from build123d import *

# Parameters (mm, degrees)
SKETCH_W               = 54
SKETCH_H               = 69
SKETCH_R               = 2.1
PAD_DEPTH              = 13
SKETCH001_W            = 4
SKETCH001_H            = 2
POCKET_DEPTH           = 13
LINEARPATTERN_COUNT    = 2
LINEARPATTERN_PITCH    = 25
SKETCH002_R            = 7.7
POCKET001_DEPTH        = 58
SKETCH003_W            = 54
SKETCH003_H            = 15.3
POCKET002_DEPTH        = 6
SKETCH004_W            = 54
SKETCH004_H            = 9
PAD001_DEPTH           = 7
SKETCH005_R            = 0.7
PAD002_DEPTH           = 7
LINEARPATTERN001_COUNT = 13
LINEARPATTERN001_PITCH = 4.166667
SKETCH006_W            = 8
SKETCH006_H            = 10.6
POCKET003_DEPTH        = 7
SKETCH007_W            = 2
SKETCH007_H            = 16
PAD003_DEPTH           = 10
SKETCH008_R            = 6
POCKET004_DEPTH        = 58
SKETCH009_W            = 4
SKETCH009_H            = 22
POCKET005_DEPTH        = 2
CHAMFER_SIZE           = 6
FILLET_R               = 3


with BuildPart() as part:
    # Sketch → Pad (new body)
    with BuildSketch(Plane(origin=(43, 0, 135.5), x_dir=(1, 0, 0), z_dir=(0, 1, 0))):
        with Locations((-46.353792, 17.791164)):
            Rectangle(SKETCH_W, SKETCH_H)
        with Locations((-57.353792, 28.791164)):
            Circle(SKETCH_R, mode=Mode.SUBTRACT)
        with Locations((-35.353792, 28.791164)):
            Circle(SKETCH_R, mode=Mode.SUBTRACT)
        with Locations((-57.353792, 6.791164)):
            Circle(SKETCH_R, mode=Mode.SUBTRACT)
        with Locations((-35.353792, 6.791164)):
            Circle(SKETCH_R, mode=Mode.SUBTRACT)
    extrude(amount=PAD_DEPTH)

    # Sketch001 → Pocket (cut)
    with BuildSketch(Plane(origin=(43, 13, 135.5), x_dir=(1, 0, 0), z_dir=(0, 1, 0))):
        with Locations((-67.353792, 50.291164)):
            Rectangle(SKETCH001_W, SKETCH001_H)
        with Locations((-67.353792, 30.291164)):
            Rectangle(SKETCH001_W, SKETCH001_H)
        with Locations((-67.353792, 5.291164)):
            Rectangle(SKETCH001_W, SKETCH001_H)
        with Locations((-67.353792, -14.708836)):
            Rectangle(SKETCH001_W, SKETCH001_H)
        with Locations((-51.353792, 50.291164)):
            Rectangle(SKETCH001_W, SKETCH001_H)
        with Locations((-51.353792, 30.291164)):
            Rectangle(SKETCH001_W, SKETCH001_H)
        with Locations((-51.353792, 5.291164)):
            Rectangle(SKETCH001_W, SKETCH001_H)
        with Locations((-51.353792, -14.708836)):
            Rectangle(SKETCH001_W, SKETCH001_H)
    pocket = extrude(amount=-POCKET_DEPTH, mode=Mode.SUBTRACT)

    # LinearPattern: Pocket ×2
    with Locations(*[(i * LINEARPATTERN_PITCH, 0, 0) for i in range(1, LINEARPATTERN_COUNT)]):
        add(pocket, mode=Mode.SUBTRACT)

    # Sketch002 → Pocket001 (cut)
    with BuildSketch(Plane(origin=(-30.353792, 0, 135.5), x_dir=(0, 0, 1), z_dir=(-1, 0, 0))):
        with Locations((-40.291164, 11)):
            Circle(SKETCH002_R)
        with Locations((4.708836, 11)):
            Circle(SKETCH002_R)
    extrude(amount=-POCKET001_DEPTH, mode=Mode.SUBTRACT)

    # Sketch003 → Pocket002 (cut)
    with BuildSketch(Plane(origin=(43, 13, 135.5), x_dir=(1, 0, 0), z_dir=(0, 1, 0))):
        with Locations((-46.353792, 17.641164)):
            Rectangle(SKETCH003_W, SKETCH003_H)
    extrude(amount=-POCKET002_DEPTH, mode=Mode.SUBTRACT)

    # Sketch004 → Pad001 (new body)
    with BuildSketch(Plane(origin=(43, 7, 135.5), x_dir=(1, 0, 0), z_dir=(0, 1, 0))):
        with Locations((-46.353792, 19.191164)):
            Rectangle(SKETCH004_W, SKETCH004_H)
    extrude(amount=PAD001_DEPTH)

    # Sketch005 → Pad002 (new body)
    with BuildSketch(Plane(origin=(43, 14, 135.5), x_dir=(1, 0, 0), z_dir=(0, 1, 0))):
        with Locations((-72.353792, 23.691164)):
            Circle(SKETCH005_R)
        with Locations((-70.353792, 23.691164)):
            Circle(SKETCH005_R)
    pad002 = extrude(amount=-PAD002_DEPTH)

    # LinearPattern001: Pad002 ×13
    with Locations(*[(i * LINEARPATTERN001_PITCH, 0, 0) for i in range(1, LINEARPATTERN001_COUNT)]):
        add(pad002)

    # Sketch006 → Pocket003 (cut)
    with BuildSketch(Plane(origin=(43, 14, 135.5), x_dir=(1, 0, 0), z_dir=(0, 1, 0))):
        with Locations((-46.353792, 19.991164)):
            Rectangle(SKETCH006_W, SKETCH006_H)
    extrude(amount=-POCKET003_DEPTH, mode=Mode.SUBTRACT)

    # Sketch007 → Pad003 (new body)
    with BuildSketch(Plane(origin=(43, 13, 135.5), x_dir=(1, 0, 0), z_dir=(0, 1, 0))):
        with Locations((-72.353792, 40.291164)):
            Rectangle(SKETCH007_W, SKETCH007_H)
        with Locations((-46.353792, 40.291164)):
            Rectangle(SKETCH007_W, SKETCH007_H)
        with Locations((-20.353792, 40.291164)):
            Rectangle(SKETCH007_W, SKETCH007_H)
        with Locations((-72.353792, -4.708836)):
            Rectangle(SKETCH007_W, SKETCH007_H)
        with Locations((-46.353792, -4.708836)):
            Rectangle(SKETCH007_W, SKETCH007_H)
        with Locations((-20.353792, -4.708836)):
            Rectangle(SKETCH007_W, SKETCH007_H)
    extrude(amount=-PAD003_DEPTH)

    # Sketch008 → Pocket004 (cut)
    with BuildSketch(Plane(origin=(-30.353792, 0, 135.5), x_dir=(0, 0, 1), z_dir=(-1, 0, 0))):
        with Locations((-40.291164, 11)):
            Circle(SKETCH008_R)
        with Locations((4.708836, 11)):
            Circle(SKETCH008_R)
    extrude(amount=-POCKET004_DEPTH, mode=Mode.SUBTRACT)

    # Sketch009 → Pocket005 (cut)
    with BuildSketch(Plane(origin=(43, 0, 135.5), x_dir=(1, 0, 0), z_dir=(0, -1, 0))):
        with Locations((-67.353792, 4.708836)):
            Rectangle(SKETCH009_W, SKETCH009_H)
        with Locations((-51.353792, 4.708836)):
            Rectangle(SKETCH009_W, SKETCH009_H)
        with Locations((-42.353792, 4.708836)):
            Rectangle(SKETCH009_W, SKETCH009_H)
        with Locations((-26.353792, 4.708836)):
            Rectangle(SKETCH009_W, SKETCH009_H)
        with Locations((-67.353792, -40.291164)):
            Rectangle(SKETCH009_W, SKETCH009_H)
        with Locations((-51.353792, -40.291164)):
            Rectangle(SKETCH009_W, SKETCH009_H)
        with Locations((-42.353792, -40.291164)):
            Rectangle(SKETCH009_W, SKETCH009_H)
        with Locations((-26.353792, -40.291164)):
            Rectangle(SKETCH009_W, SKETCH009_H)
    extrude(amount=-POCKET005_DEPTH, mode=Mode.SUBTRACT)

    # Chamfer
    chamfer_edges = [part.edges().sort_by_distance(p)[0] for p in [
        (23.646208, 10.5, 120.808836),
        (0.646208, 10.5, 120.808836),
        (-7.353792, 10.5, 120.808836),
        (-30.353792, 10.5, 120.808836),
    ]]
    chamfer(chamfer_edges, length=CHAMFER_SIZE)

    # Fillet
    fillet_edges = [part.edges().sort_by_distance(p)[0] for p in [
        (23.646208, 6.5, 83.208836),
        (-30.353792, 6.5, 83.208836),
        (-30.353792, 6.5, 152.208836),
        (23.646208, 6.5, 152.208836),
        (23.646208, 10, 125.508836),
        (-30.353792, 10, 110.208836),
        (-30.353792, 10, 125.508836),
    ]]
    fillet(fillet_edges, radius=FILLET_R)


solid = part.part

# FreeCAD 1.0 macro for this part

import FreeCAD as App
import Part
import Sketcher
from FreeCAD import Vector


def edges_at(feature, points):
    """Names of the edges that pass closest to the given points."""
    edges = feature.Shape.Edges
    near = lambda p: min(range(len(edges)), key=lambda i: edges[i].distToShape(Part.Vertex(*p))[0])
    return sorted({f"Edge{near(p) + 1}" for p in points})

doc = App.newDocument("Part")
body = doc.addObject("PartDesign::Body", "Body")

# Sketch on XZ plane
sketch1 = body.newObject("Sketcher::SketchObject", "Sketch")
sketch1.AttachmentSupport = (doc.getObject("XZ_Plane"), [""])
sketch1.MapMode = "FlatFace"
sketch1.addGeometry(Part.LineSegment(Vector(-30.353792, 83.208836, 0), Vector(-30.353792, 152.208836, 0)), False)
sketch1.addGeometry(Part.LineSegment(Vector(-30.353792, 152.208836, 0), Vector(23.646208, 152.208836, 0)), False)
sketch1.addGeometry(Part.LineSegment(Vector(23.646208, 152.208836, 0), Vector(23.646208, 83.208836, 0)), False)
sketch1.addGeometry(Part.LineSegment(Vector(23.646208, 83.208836, 0), Vector(-30.353792, 83.208836, 0)), False)
sketch1.addGeometry(Part.Circle(Vector(-14.353792, 128.708836, 0), Vector(0, 0, 1), 2.1), False)
sketch1.addGeometry(Part.Circle(Vector(7.646208, 128.708836, 0), Vector(0, 0, 1), 2.1), False)
sketch1.addGeometry(Part.Circle(Vector(-14.353792, 106.708836, 0), Vector(0, 0, 1), 2.1), False)
sketch1.addGeometry(Part.Circle(Vector(7.646208, 106.708836, 0), Vector(0, 0, 1), 2.1), False)
sketch1.addConstraint(Sketcher.Constraint("Coincident", 0, 2, 1, 1))
sketch1.addConstraint(Sketcher.Constraint("Coincident", 1, 2, 2, 1))
sketch1.addConstraint(Sketcher.Constraint("Coincident", 2, 2, 3, 1))
sketch1.addConstraint(Sketcher.Constraint("Coincident", 3, 2, 0, 1))
sketch1.addConstraint(Sketcher.Constraint("Vertical", 0))
sketch1.addConstraint(Sketcher.Constraint("Horizontal", 1))
sketch1.addConstraint(Sketcher.Constraint("Vertical", 2))
sketch1.addConstraint(Sketcher.Constraint("Horizontal", 3))
sketch1.addConstraint(Sketcher.Constraint("Equal", 4, 5))
sketch1.addConstraint(Sketcher.Constraint("Equal", 5, 6))
sketch1.addConstraint(Sketcher.Constraint("Equal", 6, 7))
sketch1.addConstraint(Sketcher.Constraint("Horizontal", 4, 3, 5, 3))
sketch1.addConstraint(Sketcher.Constraint("Horizontal", 6, 3, 7, 3))
sketch1.addConstraint(Sketcher.Constraint("Vertical", 4, 3, 6, 3))
sketch1.addConstraint(Sketcher.Constraint("Vertical", 5, 3, 7, 3))
sketch1.addConstraint(Sketcher.Constraint("Diameter", 4, 4.2))
sketch1.addConstraint(Sketcher.Constraint("DistanceX", 1, 1, 1, 2, 54.0))
sketch1.addConstraint(Sketcher.Constraint("DistanceY", 0, 1, 0, 2, 69.0))
sketch1.addConstraint(Sketcher.Constraint("DistanceX", 4, 3, 5, 3, 22.0))
sketch1.addConstraint(Sketcher.Constraint("DistanceY", 6, 3, 4, 3, 22.0))
sketch1.addConstraint(Sketcher.Constraint("DistanceX", 0, 2, 4, 3, 16.0))
sketch1.addConstraint(Sketcher.Constraint("DistanceY", 4, 3, 0, 2, 23.5))
sketch1.addConstraint(Sketcher.Constraint("DistanceX", 0, 2, -1, 1, 30.353792))
sketch1.addConstraint(Sketcher.Constraint("DistanceY", -1, 1, 4, 3, 128.708836))
pad1 = body.newObject("PartDesign::Pad", "Pad")
pad1.Profile = sketch1
pad1.Length = 13
pad1.Reversed = True

# Sketch on XZ plane
sketch2 = body.newObject("Sketcher::SketchObject", "Sketch001")
sketch2.AttachmentSupport = (doc.getObject("XZ_Plane"), [""])
sketch2.MapMode = "FlatFace"
sketch2.AttachmentOffset = App.Placement(Vector(0, 0, -13), App.Rotation())
sketch2.addGeometry(Part.LineSegment(Vector(-26.353792, 84.208836, 0), Vector(-26.353792, 86.208836, 0)), False)
sketch2.addGeometry(Part.LineSegment(Vector(-26.353792, 86.208836, 0), Vector(-22.353792, 86.208836, 0)), False)
sketch2.addGeometry(Part.LineSegment(Vector(-22.353792, 86.208836, 0), Vector(-22.353792, 84.208836, 0)), False)
sketch2.addGeometry(Part.LineSegment(Vector(-22.353792, 84.208836, 0), Vector(-26.353792, 84.208836, 0)), False)
sketch2.addGeometry(Part.LineSegment(Vector(-26.353792, 104.208836, 0), Vector(-26.353792, 106.208836, 0)), False)
sketch2.addGeometry(Part.LineSegment(Vector(-26.353792, 106.208836, 0), Vector(-22.353792, 106.208836, 0)), False)
sketch2.addGeometry(Part.LineSegment(Vector(-22.353792, 106.208836, 0), Vector(-22.353792, 104.208836, 0)), False)
sketch2.addGeometry(Part.LineSegment(Vector(-22.353792, 104.208836, 0), Vector(-26.353792, 104.208836, 0)), False)
sketch2.addGeometry(Part.LineSegment(Vector(-26.353792, 129.208836, 0), Vector(-26.353792, 131.208836, 0)), False)
sketch2.addGeometry(Part.LineSegment(Vector(-26.353792, 131.208836, 0), Vector(-22.353792, 131.208836, 0)), False)
sketch2.addGeometry(Part.LineSegment(Vector(-22.353792, 131.208836, 0), Vector(-22.353792, 129.208836, 0)), False)
sketch2.addGeometry(Part.LineSegment(Vector(-22.353792, 129.208836, 0), Vector(-26.353792, 129.208836, 0)), False)
sketch2.addGeometry(Part.LineSegment(Vector(-26.353792, 149.208836, 0), Vector(-26.353792, 151.208836, 0)), False)
sketch2.addGeometry(Part.LineSegment(Vector(-26.353792, 151.208836, 0), Vector(-22.353792, 151.208836, 0)), False)
sketch2.addGeometry(Part.LineSegment(Vector(-22.353792, 151.208836, 0), Vector(-22.353792, 149.208836, 0)), False)
sketch2.addGeometry(Part.LineSegment(Vector(-22.353792, 149.208836, 0), Vector(-26.353792, 149.208836, 0)), False)
sketch2.addGeometry(Part.LineSegment(Vector(-10.353792, 84.208836, 0), Vector(-10.353792, 86.208836, 0)), False)
sketch2.addGeometry(Part.LineSegment(Vector(-10.353792, 86.208836, 0), Vector(-6.353792, 86.208836, 0)), False)
sketch2.addGeometry(Part.LineSegment(Vector(-6.353792, 86.208836, 0), Vector(-6.353792, 84.208836, 0)), False)
sketch2.addGeometry(Part.LineSegment(Vector(-6.353792, 84.208836, 0), Vector(-10.353792, 84.208836, 0)), False)
sketch2.addGeometry(Part.LineSegment(Vector(-10.353792, 104.208836, 0), Vector(-10.353792, 106.208836, 0)), False)
sketch2.addGeometry(Part.LineSegment(Vector(-10.353792, 106.208836, 0), Vector(-6.353792, 106.208836, 0)), False)
sketch2.addGeometry(Part.LineSegment(Vector(-6.353792, 106.208836, 0), Vector(-6.353792, 104.208836, 0)), False)
sketch2.addGeometry(Part.LineSegment(Vector(-6.353792, 104.208836, 0), Vector(-10.353792, 104.208836, 0)), False)
sketch2.addGeometry(Part.LineSegment(Vector(-10.353792, 129.208836, 0), Vector(-10.353792, 131.208836, 0)), False)
sketch2.addGeometry(Part.LineSegment(Vector(-10.353792, 131.208836, 0), Vector(-6.353792, 131.208836, 0)), False)
sketch2.addGeometry(Part.LineSegment(Vector(-6.353792, 131.208836, 0), Vector(-6.353792, 129.208836, 0)), False)
sketch2.addGeometry(Part.LineSegment(Vector(-6.353792, 129.208836, 0), Vector(-10.353792, 129.208836, 0)), False)
sketch2.addGeometry(Part.LineSegment(Vector(-10.353792, 149.208836, 0), Vector(-10.353792, 151.208836, 0)), False)
sketch2.addGeometry(Part.LineSegment(Vector(-10.353792, 151.208836, 0), Vector(-6.353792, 151.208836, 0)), False)
sketch2.addGeometry(Part.LineSegment(Vector(-6.353792, 151.208836, 0), Vector(-6.353792, 149.208836, 0)), False)
sketch2.addGeometry(Part.LineSegment(Vector(-6.353792, 149.208836, 0), Vector(-10.353792, 149.208836, 0)), False)
sketch2.addConstraint(Sketcher.Constraint("Coincident", 0, 2, 1, 1))
sketch2.addConstraint(Sketcher.Constraint("Coincident", 1, 2, 2, 1))
sketch2.addConstraint(Sketcher.Constraint("Coincident", 2, 2, 3, 1))
sketch2.addConstraint(Sketcher.Constraint("Coincident", 3, 2, 0, 1))
sketch2.addConstraint(Sketcher.Constraint("Coincident", 4, 2, 5, 1))
sketch2.addConstraint(Sketcher.Constraint("Coincident", 5, 2, 6, 1))
sketch2.addConstraint(Sketcher.Constraint("Coincident", 6, 2, 7, 1))
sketch2.addConstraint(Sketcher.Constraint("Coincident", 7, 2, 4, 1))
sketch2.addConstraint(Sketcher.Constraint("Coincident", 8, 2, 9, 1))
sketch2.addConstraint(Sketcher.Constraint("Coincident", 9, 2, 10, 1))
sketch2.addConstraint(Sketcher.Constraint("Coincident", 10, 2, 11, 1))
sketch2.addConstraint(Sketcher.Constraint("Coincident", 11, 2, 8, 1))
sketch2.addConstraint(Sketcher.Constraint("Coincident", 12, 2, 13, 1))
sketch2.addConstraint(Sketcher.Constraint("Coincident", 13, 2, 14, 1))
sketch2.addConstraint(Sketcher.Constraint("Coincident", 14, 2, 15, 1))
sketch2.addConstraint(Sketcher.Constraint("Coincident", 15, 2, 12, 1))
sketch2.addConstraint(Sketcher.Constraint("Coincident", 16, 2, 17, 1))
sketch2.addConstraint(Sketcher.Constraint("Coincident", 17, 2, 18, 1))
sketch2.addConstraint(Sketcher.Constraint("Coincident", 18, 2, 19, 1))
sketch2.addConstraint(Sketcher.Constraint("Coincident", 19, 2, 16, 1))
sketch2.addConstraint(Sketcher.Constraint("Coincident", 20, 2, 21, 1))
sketch2.addConstraint(Sketcher.Constraint("Coincident", 21, 2, 22, 1))
sketch2.addConstraint(Sketcher.Constraint("Coincident", 22, 2, 23, 1))
sketch2.addConstraint(Sketcher.Constraint("Coincident", 23, 2, 20, 1))
sketch2.addConstraint(Sketcher.Constraint("Coincident", 24, 2, 25, 1))
sketch2.addConstraint(Sketcher.Constraint("Coincident", 25, 2, 26, 1))
sketch2.addConstraint(Sketcher.Constraint("Coincident", 26, 2, 27, 1))
sketch2.addConstraint(Sketcher.Constraint("Coincident", 27, 2, 24, 1))
sketch2.addConstraint(Sketcher.Constraint("Coincident", 28, 2, 29, 1))
sketch2.addConstraint(Sketcher.Constraint("Coincident", 29, 2, 30, 1))
sketch2.addConstraint(Sketcher.Constraint("Coincident", 30, 2, 31, 1))
sketch2.addConstraint(Sketcher.Constraint("Coincident", 31, 2, 28, 1))
sketch2.addConstraint(Sketcher.Constraint("Vertical", 0))
sketch2.addConstraint(Sketcher.Constraint("Horizontal", 1))
sketch2.addConstraint(Sketcher.Constraint("Vertical", 2))
sketch2.addConstraint(Sketcher.Constraint("Horizontal", 3))
sketch2.addConstraint(Sketcher.Constraint("Vertical", 4))
sketch2.addConstraint(Sketcher.Constraint("Horizontal", 5))
sketch2.addConstraint(Sketcher.Constraint("Vertical", 6))
sketch2.addConstraint(Sketcher.Constraint("Horizontal", 7))
sketch2.addConstraint(Sketcher.Constraint("Vertical", 8))
sketch2.addConstraint(Sketcher.Constraint("Horizontal", 9))
sketch2.addConstraint(Sketcher.Constraint("Vertical", 10))
sketch2.addConstraint(Sketcher.Constraint("Horizontal", 11))
sketch2.addConstraint(Sketcher.Constraint("Vertical", 12))
sketch2.addConstraint(Sketcher.Constraint("Horizontal", 13))
sketch2.addConstraint(Sketcher.Constraint("Vertical", 14))
sketch2.addConstraint(Sketcher.Constraint("Horizontal", 15))
sketch2.addConstraint(Sketcher.Constraint("Vertical", 16))
sketch2.addConstraint(Sketcher.Constraint("Horizontal", 17))
sketch2.addConstraint(Sketcher.Constraint("Vertical", 18))
sketch2.addConstraint(Sketcher.Constraint("Horizontal", 19))
sketch2.addConstraint(Sketcher.Constraint("Vertical", 20))
sketch2.addConstraint(Sketcher.Constraint("Horizontal", 21))
sketch2.addConstraint(Sketcher.Constraint("Vertical", 22))
sketch2.addConstraint(Sketcher.Constraint("Horizontal", 23))
sketch2.addConstraint(Sketcher.Constraint("Vertical", 24))
sketch2.addConstraint(Sketcher.Constraint("Horizontal", 25))
sketch2.addConstraint(Sketcher.Constraint("Vertical", 26))
sketch2.addConstraint(Sketcher.Constraint("Horizontal", 27))
sketch2.addConstraint(Sketcher.Constraint("Vertical", 28))
sketch2.addConstraint(Sketcher.Constraint("Horizontal", 29))
sketch2.addConstraint(Sketcher.Constraint("Vertical", 30))
sketch2.addConstraint(Sketcher.Constraint("Horizontal", 31))
sketch2.addConstraint(Sketcher.Constraint("Horizontal", 1, 2, 16, 2))
sketch2.addConstraint(Sketcher.Constraint("Horizontal", 3, 2, 18, 2))
sketch2.addConstraint(Sketcher.Constraint("Horizontal", 5, 2, 20, 2))
sketch2.addConstraint(Sketcher.Constraint("Horizontal", 7, 2, 22, 2))
sketch2.addConstraint(Sketcher.Constraint("Horizontal", 9, 2, 24, 2))
sketch2.addConstraint(Sketcher.Constraint("Horizontal", 11, 2, 26, 2))
sketch2.addConstraint(Sketcher.Constraint("Horizontal", 13, 2, 28, 2))
sketch2.addConstraint(Sketcher.Constraint("Horizontal", 15, 2, 30, 2))
sketch2.addConstraint(Sketcher.Constraint("Vertical", 3, 2, 4, 2))
sketch2.addConstraint(Sketcher.Constraint("Vertical", 2, 2, 5, 2))
sketch2.addConstraint(Sketcher.Constraint("Vertical", 7, 2, 8, 2))
sketch2.addConstraint(Sketcher.Constraint("Vertical", 6, 2, 9, 2))
sketch2.addConstraint(Sketcher.Constraint("Vertical", 11, 2, 12, 2))
sketch2.addConstraint(Sketcher.Constraint("Vertical", 10, 2, 13, 2))
sketch2.addConstraint(Sketcher.Constraint("Vertical", 19, 2, 20, 2))
sketch2.addConstraint(Sketcher.Constraint("Vertical", 18, 2, 21, 2))
sketch2.addConstraint(Sketcher.Constraint("Vertical", 23, 2, 24, 2))
sketch2.addConstraint(Sketcher.Constraint("Vertical", 22, 2, 25, 2))
sketch2.addConstraint(Sketcher.Constraint("Vertical", 27, 2, 28, 2))
sketch2.addConstraint(Sketcher.Constraint("Vertical", 26, 2, 29, 2))
sketch2.addConstraint(Sketcher.Constraint("Equal", 15, 17))
sketch2.addConstraint(Sketcher.Constraint("Equal", 2, 4))
sketch2.addConstraint(Sketcher.Constraint("Equal", 6, 8))
sketch2.addConstraint(Sketcher.Constraint("Equal", 10, 12))
sketch2.addConstraint(Sketcher.Constraint("DistanceX", 1, 1, 1, 2, 4.0))
sketch2.addConstraint(Sketcher.Constraint("DistanceY", 0, 1, 0, 2, 2.0))
sketch2.addConstraint(Sketcher.Constraint("DistanceY", 0, 2, 4, 2, 20.0))
sketch2.addConstraint(Sketcher.Constraint("DistanceY", 4, 2, 8, 2, 25.0))
sketch2.addConstraint(Sketcher.Constraint("DistanceY", 8, 2, 12, 2, 20.0))
sketch2.addConstraint(Sketcher.Constraint("DistanceX", 1, 2, 16, 2, 12.0))
sketch2.addConstraint(Sketcher.Constraint("DistanceX", 0, 2, -1, 1, 26.353792))
sketch2.addConstraint(Sketcher.Constraint("DistanceY", -1, 1, 0, 2, 86.208836))
pocket1 = body.newObject("PartDesign::Pocket", "Pocket")
pocket1.Profile = sketch2
pocket1.Length = 13
pocket1.Reversed = True
doc.recompute()

linearpattern = body.newObject("PartDesign::LinearPattern", "LinearPattern")
linearpattern.Originals = [pocket1]
linearpattern.Direction = (doc.getObject("X_Axis"), [""])
linearpattern.Mode = "offset"
linearpattern.Offset = 25
linearpattern.Occurrences = 2
body.Tip = linearpattern

# Sketch on YZ plane
sketch3 = body.newObject("Sketcher::SketchObject", "Sketch002")
sketch3.AttachmentSupport = (doc.getObject("YZ_Plane"), [""])
sketch3.MapMode = "FlatFace"
sketch3.AttachmentOffset = App.Placement(Vector(0, 0, -30.353792), App.Rotation())
sketch3.addGeometry(Part.Circle(Vector(11, 95.208836, 0), Vector(0, 0, 1), 7.7), False)
sketch3.addGeometry(Part.Circle(Vector(11, 140.208836, 0), Vector(0, 0, 1), 7.7), False)
sketch3.addConstraint(Sketcher.Constraint("Equal", 0, 1))
sketch3.addConstraint(Sketcher.Constraint("Vertical", 0, 3, 1, 3))
sketch3.addConstraint(Sketcher.Constraint("Diameter", 0, 15.4))
sketch3.addConstraint(Sketcher.Constraint("DistanceX", -1, 1, 0, 3, 11.0))
sketch3.addConstraint(Sketcher.Constraint("DistanceY", 0, 3, 1, 3, 45.0))
sketch3.addConstraint(Sketcher.Constraint("DistanceY", -1, 1, 0, 3, 95.208836))
pocket2 = body.newObject("PartDesign::Pocket", "Pocket001")
pocket2.Profile = sketch3
pocket2.Length = 58
pocket2.Reversed = True

# Sketch on XZ plane
sketch4 = body.newObject("Sketcher::SketchObject", "Sketch003")
sketch4.AttachmentSupport = (doc.getObject("XZ_Plane"), [""])
sketch4.MapMode = "FlatFace"
sketch4.AttachmentOffset = App.Placement(Vector(0, 0, -13), App.Rotation())
sketch4.addGeometry(Part.LineSegment(Vector(-30.353792, 110.208836, 0), Vector(-30.353792, 125.508836, 0)), False)
sketch4.addGeometry(Part.LineSegment(Vector(-30.353792, 125.508836, 0), Vector(23.646208, 125.508836, 0)), False)
sketch4.addGeometry(Part.LineSegment(Vector(23.646208, 125.508836, 0), Vector(23.646208, 110.208836, 0)), False)
sketch4.addGeometry(Part.LineSegment(Vector(23.646208, 110.208836, 0), Vector(-30.353792, 110.208836, 0)), False)
sketch4.addConstraint(Sketcher.Constraint("Coincident", 0, 2, 1, 1))
sketch4.addConstraint(Sketcher.Constraint("Coincident", 1, 2, 2, 1))
sketch4.addConstraint(Sketcher.Constraint("Coincident", 2, 2, 3, 1))
sketch4.addConstraint(Sketcher.Constraint("Coincident", 3, 2, 0, 1))
sketch4.addConstraint(Sketcher.Constraint("Vertical", 0))
sketch4.addConstraint(Sketcher.Constraint("Horizontal", 1))
sketch4.addConstraint(Sketcher.Constraint("Vertical", 2))
sketch4.addConstraint(Sketcher.Constraint("Horizontal", 3))
sketch4.addConstraint(Sketcher.Constraint("DistanceX", 1, 1, 1, 2, 54.0))
sketch4.addConstraint(Sketcher.Constraint("DistanceY", 0, 1, 0, 2, 15.3))
sketch4.addConstraint(Sketcher.Constraint("DistanceX", 0, 2, -1, 1, 30.353792))
sketch4.addConstraint(Sketcher.Constraint("DistanceY", -1, 1, 0, 2, 125.508836))
pocket3 = body.newObject("PartDesign::Pocket", "Pocket002")
pocket3.Profile = sketch4
pocket3.Length = 6
pocket3.Reversed = True

# Sketch on XZ plane
sketch5 = body.newObject("Sketcher::SketchObject", "Sketch004")
sketch5.AttachmentSupport = (doc.getObject("XZ_Plane"), [""])
sketch5.MapMode = "FlatFace"
sketch5.AttachmentOffset = App.Placement(Vector(0, 0, -7), App.Rotation())
sketch5.addGeometry(Part.LineSegment(Vector(-30.353792, 111.808836, 0), Vector(-30.353792, 120.808836, 0)), False)
sketch5.addGeometry(Part.LineSegment(Vector(-30.353792, 120.808836, 0), Vector(23.646208, 120.808836, 0)), False)
sketch5.addGeometry(Part.LineSegment(Vector(23.646208, 120.808836, 0), Vector(23.646208, 111.808836, 0)), False)
sketch5.addGeometry(Part.LineSegment(Vector(23.646208, 111.808836, 0), Vector(-30.353792, 111.808836, 0)), False)
sketch5.addConstraint(Sketcher.Constraint("Coincident", 0, 2, 1, 1))
sketch5.addConstraint(Sketcher.Constraint("Coincident", 1, 2, 2, 1))
sketch5.addConstraint(Sketcher.Constraint("Coincident", 2, 2, 3, 1))
sketch5.addConstraint(Sketcher.Constraint("Coincident", 3, 2, 0, 1))
sketch5.addConstraint(Sketcher.Constraint("Vertical", 0))
sketch5.addConstraint(Sketcher.Constraint("Horizontal", 1))
sketch5.addConstraint(Sketcher.Constraint("Vertical", 2))
sketch5.addConstraint(Sketcher.Constraint("Horizontal", 3))
sketch5.addConstraint(Sketcher.Constraint("DistanceX", 1, 1, 1, 2, 54.0))
sketch5.addConstraint(Sketcher.Constraint("DistanceY", 0, 1, 0, 2, 9.0))
sketch5.addConstraint(Sketcher.Constraint("DistanceX", 0, 2, -1, 1, 30.353792))
sketch5.addConstraint(Sketcher.Constraint("DistanceY", -1, 1, 0, 2, 120.808836))
pad2 = body.newObject("PartDesign::Pad", "Pad001")
pad2.Profile = sketch5
pad2.Length = 7
pad2.Reversed = True

# Sketch on XZ plane
sketch6 = body.newObject("Sketcher::SketchObject", "Sketch005")
sketch6.AttachmentSupport = (doc.getObject("XZ_Plane"), [""])
sketch6.MapMode = "FlatFace"
sketch6.AttachmentOffset = App.Placement(Vector(0, 0, -14), App.Rotation())
sketch6.addGeometry(Part.Circle(Vector(-29.353792, 111.808836, 0), Vector(0, 0, 1), 0.7), False)
sketch6.addGeometry(Part.Circle(Vector(-27.353792, 111.808836, 0), Vector(0, 0, 1), 0.7), False)
sketch6.addConstraint(Sketcher.Constraint("Equal", 0, 1))
sketch6.addConstraint(Sketcher.Constraint("Horizontal", 0, 3, 1, 3))
sketch6.addConstraint(Sketcher.Constraint("Diameter", 0, 1.4))
sketch6.addConstraint(Sketcher.Constraint("DistanceX", 0, 3, 1, 3, 2.0))
sketch6.addConstraint(Sketcher.Constraint("DistanceX", 0, 3, -1, 1, 29.353792))
sketch6.addConstraint(Sketcher.Constraint("DistanceY", -1, 1, 0, 3, 111.808836))
pad3 = body.newObject("PartDesign::Pad", "Pad002")
pad3.Profile = sketch6
pad3.Length = 7
doc.recompute()

linearpattern2 = body.newObject("PartDesign::LinearPattern", "LinearPattern001")
linearpattern2.Originals = [pad3]
linearpattern2.Direction = (doc.getObject("X_Axis"), [""])
linearpattern2.Mode = "offset"
linearpattern2.Offset = 4.166667
linearpattern2.Occurrences = 13
body.Tip = linearpattern2

# Sketch on XZ plane
sketch7 = body.newObject("Sketcher::SketchObject", "Sketch006")
sketch7.AttachmentSupport = (doc.getObject("XZ_Plane"), [""])
sketch7.MapMode = "FlatFace"
sketch7.AttachmentOffset = App.Placement(Vector(0, 0, -14), App.Rotation())
sketch7.addGeometry(Part.LineSegment(Vector(-7.353792, 110.208836, 0), Vector(-7.353792, 120.808836, 0)), False)
sketch7.addGeometry(Part.LineSegment(Vector(-7.353792, 120.808836, 0), Vector(0.646208, 120.808836, 0)), False)
sketch7.addGeometry(Part.LineSegment(Vector(0.646208, 120.808836, 0), Vector(0.646208, 110.208836, 0)), False)
sketch7.addGeometry(Part.LineSegment(Vector(0.646208, 110.208836, 0), Vector(-7.353792, 110.208836, 0)), False)
sketch7.addConstraint(Sketcher.Constraint("Coincident", 0, 2, 1, 1))
sketch7.addConstraint(Sketcher.Constraint("Coincident", 1, 2, 2, 1))
sketch7.addConstraint(Sketcher.Constraint("Coincident", 2, 2, 3, 1))
sketch7.addConstraint(Sketcher.Constraint("Coincident", 3, 2, 0, 1))
sketch7.addConstraint(Sketcher.Constraint("Vertical", 0))
sketch7.addConstraint(Sketcher.Constraint("Horizontal", 1))
sketch7.addConstraint(Sketcher.Constraint("Vertical", 2))
sketch7.addConstraint(Sketcher.Constraint("Horizontal", 3))
sketch7.addConstraint(Sketcher.Constraint("DistanceX", 1, 1, 1, 2, 8.0))
sketch7.addConstraint(Sketcher.Constraint("DistanceY", 0, 1, 0, 2, 10.6))
sketch7.addConstraint(Sketcher.Constraint("DistanceX", -1, 1, 1, 2, 0.646208))
sketch7.addConstraint(Sketcher.Constraint("DistanceY", -1, 1, 0, 2, 120.808836))
pocket4 = body.newObject("PartDesign::Pocket", "Pocket003")
pocket4.Profile = sketch7
pocket4.Length = 7
pocket4.Reversed = True

# Sketch on XZ plane
sketch8 = body.newObject("Sketcher::SketchObject", "Sketch007")
sketch8.AttachmentSupport = (doc.getObject("XZ_Plane"), [""])
sketch8.MapMode = "FlatFace"
sketch8.AttachmentOffset = App.Placement(Vector(0, 0, -13), App.Rotation())
sketch8.addGeometry(Part.LineSegment(Vector(-30.353792, 87.208836, 0), Vector(-30.353792, 103.208836, 0)), False)
sketch8.addGeometry(Part.LineSegment(Vector(-30.353792, 103.208836, 0), Vector(-28.353792, 103.208836, 0)), False)
sketch8.addGeometry(Part.LineSegment(Vector(-28.353792, 103.208836, 0), Vector(-28.353792, 87.208836, 0)), False)
sketch8.addGeometry(Part.LineSegment(Vector(-28.353792, 87.208836, 0), Vector(-30.353792, 87.208836, 0)), False)
sketch8.addGeometry(Part.LineSegment(Vector(-4.353792, 87.208836, 0), Vector(-4.353792, 103.208836, 0)), False)
sketch8.addGeometry(Part.LineSegment(Vector(-4.353792, 103.208836, 0), Vector(-2.353792, 103.208836, 0)), False)
sketch8.addGeometry(Part.LineSegment(Vector(-2.353792, 103.208836, 0), Vector(-2.353792, 87.208836, 0)), False)
sketch8.addGeometry(Part.LineSegment(Vector(-2.353792, 87.208836, 0), Vector(-4.353792, 87.208836, 0)), False)
sketch8.addGeometry(Part.LineSegment(Vector(21.646208, 87.208836, 0), Vector(21.646208, 103.208836, 0)), False)
sketch8.addGeometry(Part.LineSegment(Vector(21.646208, 103.208836, 0), Vector(23.646208, 103.208836, 0)), False)
sketch8.addGeometry(Part.LineSegment(Vector(23.646208, 103.208836, 0), Vector(23.646208, 87.208836, 0)), False)
sketch8.addGeometry(Part.LineSegment(Vector(23.646208, 87.208836, 0), Vector(21.646208, 87.208836, 0)), False)
sketch8.addGeometry(Part.LineSegment(Vector(-30.353792, 132.208836, 0), Vector(-30.353792, 148.208836, 0)), False)
sketch8.addGeometry(Part.LineSegment(Vector(-30.353792, 148.208836, 0), Vector(-28.353792, 148.208836, 0)), False)
sketch8.addGeometry(Part.LineSegment(Vector(-28.353792, 148.208836, 0), Vector(-28.353792, 132.208836, 0)), False)
sketch8.addGeometry(Part.LineSegment(Vector(-28.353792, 132.208836, 0), Vector(-30.353792, 132.208836, 0)), False)
sketch8.addGeometry(Part.LineSegment(Vector(-4.353792, 132.208836, 0), Vector(-4.353792, 148.208836, 0)), False)
sketch8.addGeometry(Part.LineSegment(Vector(-4.353792, 148.208836, 0), Vector(-2.353792, 148.208836, 0)), False)
sketch8.addGeometry(Part.LineSegment(Vector(-2.353792, 148.208836, 0), Vector(-2.353792, 132.208836, 0)), False)
sketch8.addGeometry(Part.LineSegment(Vector(-2.353792, 132.208836, 0), Vector(-4.353792, 132.208836, 0)), False)
sketch8.addGeometry(Part.LineSegment(Vector(21.646208, 132.208836, 0), Vector(21.646208, 148.208836, 0)), False)
sketch8.addGeometry(Part.LineSegment(Vector(21.646208, 148.208836, 0), Vector(23.646208, 148.208836, 0)), False)
sketch8.addGeometry(Part.LineSegment(Vector(23.646208, 148.208836, 0), Vector(23.646208, 132.208836, 0)), False)
sketch8.addGeometry(Part.LineSegment(Vector(23.646208, 132.208836, 0), Vector(21.646208, 132.208836, 0)), False)
sketch8.addConstraint(Sketcher.Constraint("Coincident", 0, 2, 1, 1))
sketch8.addConstraint(Sketcher.Constraint("Coincident", 1, 2, 2, 1))
sketch8.addConstraint(Sketcher.Constraint("Coincident", 2, 2, 3, 1))
sketch8.addConstraint(Sketcher.Constraint("Coincident", 3, 2, 0, 1))
sketch8.addConstraint(Sketcher.Constraint("Coincident", 4, 2, 5, 1))
sketch8.addConstraint(Sketcher.Constraint("Coincident", 5, 2, 6, 1))
sketch8.addConstraint(Sketcher.Constraint("Coincident", 6, 2, 7, 1))
sketch8.addConstraint(Sketcher.Constraint("Coincident", 7, 2, 4, 1))
sketch8.addConstraint(Sketcher.Constraint("Coincident", 8, 2, 9, 1))
sketch8.addConstraint(Sketcher.Constraint("Coincident", 9, 2, 10, 1))
sketch8.addConstraint(Sketcher.Constraint("Coincident", 10, 2, 11, 1))
sketch8.addConstraint(Sketcher.Constraint("Coincident", 11, 2, 8, 1))
sketch8.addConstraint(Sketcher.Constraint("Coincident", 12, 2, 13, 1))
sketch8.addConstraint(Sketcher.Constraint("Coincident", 13, 2, 14, 1))
sketch8.addConstraint(Sketcher.Constraint("Coincident", 14, 2, 15, 1))
sketch8.addConstraint(Sketcher.Constraint("Coincident", 15, 2, 12, 1))
sketch8.addConstraint(Sketcher.Constraint("Coincident", 16, 2, 17, 1))
sketch8.addConstraint(Sketcher.Constraint("Coincident", 17, 2, 18, 1))
sketch8.addConstraint(Sketcher.Constraint("Coincident", 18, 2, 19, 1))
sketch8.addConstraint(Sketcher.Constraint("Coincident", 19, 2, 16, 1))
sketch8.addConstraint(Sketcher.Constraint("Coincident", 20, 2, 21, 1))
sketch8.addConstraint(Sketcher.Constraint("Coincident", 21, 2, 22, 1))
sketch8.addConstraint(Sketcher.Constraint("Coincident", 22, 2, 23, 1))
sketch8.addConstraint(Sketcher.Constraint("Coincident", 23, 2, 20, 1))
sketch8.addConstraint(Sketcher.Constraint("Vertical", 0))
sketch8.addConstraint(Sketcher.Constraint("Horizontal", 1))
sketch8.addConstraint(Sketcher.Constraint("Vertical", 2))
sketch8.addConstraint(Sketcher.Constraint("Horizontal", 3))
sketch8.addConstraint(Sketcher.Constraint("Vertical", 4))
sketch8.addConstraint(Sketcher.Constraint("Horizontal", 5))
sketch8.addConstraint(Sketcher.Constraint("Vertical", 6))
sketch8.addConstraint(Sketcher.Constraint("Horizontal", 7))
sketch8.addConstraint(Sketcher.Constraint("Vertical", 8))
sketch8.addConstraint(Sketcher.Constraint("Horizontal", 9))
sketch8.addConstraint(Sketcher.Constraint("Vertical", 10))
sketch8.addConstraint(Sketcher.Constraint("Horizontal", 11))
sketch8.addConstraint(Sketcher.Constraint("Vertical", 12))
sketch8.addConstraint(Sketcher.Constraint("Horizontal", 13))
sketch8.addConstraint(Sketcher.Constraint("Vertical", 14))
sketch8.addConstraint(Sketcher.Constraint("Horizontal", 15))
sketch8.addConstraint(Sketcher.Constraint("Vertical", 16))
sketch8.addConstraint(Sketcher.Constraint("Horizontal", 17))
sketch8.addConstraint(Sketcher.Constraint("Vertical", 18))
sketch8.addConstraint(Sketcher.Constraint("Horizontal", 19))
sketch8.addConstraint(Sketcher.Constraint("Vertical", 20))
sketch8.addConstraint(Sketcher.Constraint("Horizontal", 21))
sketch8.addConstraint(Sketcher.Constraint("Vertical", 22))
sketch8.addConstraint(Sketcher.Constraint("Horizontal", 23))
sketch8.addConstraint(Sketcher.Constraint("Horizontal", 1, 2, 4, 2))
sketch8.addConstraint(Sketcher.Constraint("Horizontal", 3, 2, 6, 2))
sketch8.addConstraint(Sketcher.Constraint("Horizontal", 5, 2, 8, 2))
sketch8.addConstraint(Sketcher.Constraint("Horizontal", 7, 2, 10, 2))
sketch8.addConstraint(Sketcher.Constraint("Horizontal", 13, 2, 16, 2))
sketch8.addConstraint(Sketcher.Constraint("Horizontal", 15, 2, 18, 2))
sketch8.addConstraint(Sketcher.Constraint("Horizontal", 17, 2, 20, 2))
sketch8.addConstraint(Sketcher.Constraint("Horizontal", 19, 2, 22, 2))
sketch8.addConstraint(Sketcher.Constraint("Vertical", 3, 2, 12, 2))
sketch8.addConstraint(Sketcher.Constraint("Vertical", 2, 2, 13, 2))
sketch8.addConstraint(Sketcher.Constraint("Vertical", 7, 2, 16, 2))
sketch8.addConstraint(Sketcher.Constraint("Vertical", 6, 2, 17, 2))
sketch8.addConstraint(Sketcher.Constraint("Vertical", 11, 2, 20, 2))
sketch8.addConstraint(Sketcher.Constraint("Vertical", 10, 2, 21, 2))
sketch8.addConstraint(Sketcher.Constraint("Equal", 3, 5))
sketch8.addConstraint(Sketcher.Constraint("Equal", 7, 9))
sketch8.addConstraint(Sketcher.Constraint("Equal", 10, 12))
sketch8.addConstraint(Sketcher.Constraint("DistanceX", 1, 1, 1, 2, 2.0))
sketch8.addConstraint(Sketcher.Constraint("DistanceY", 0, 1, 0, 2, 16.0))
sketch8.addConstraint(Sketcher.Constraint("DistanceX", 1, 2, 4, 2, 24.0))
sketch8.addConstraint(Sketcher.Constraint("DistanceX", 5, 2, 8, 2, 24.0))
sketch8.addConstraint(Sketcher.Constraint("DistanceY", 0, 2, 12, 2, 45.0))
sketch8.addConstraint(Sketcher.Constraint("DistanceX", 0, 2, -1, 1, 30.353792))
sketch8.addConstraint(Sketcher.Constraint("DistanceY", -1, 1, 0, 2, 103.208836))
pad4 = body.newObject("PartDesign::Pad", "Pad003")
pad4.Profile = sketch8
pad4.Length = 10

# Sketch on YZ plane
sketch9 = body.newObject("Sketcher::SketchObject", "Sketch008")
sketch9.AttachmentSupport = (doc.getObject("YZ_Plane"), [""])
sketch9.MapMode = "FlatFace"
sketch9.AttachmentOffset = App.Placement(Vector(0, 0, -30.353792), App.Rotation())
sketch9.addGeometry(Part.Circle(Vector(11, 95.208836, 0), Vector(0, 0, 1), 6), False)
sketch9.addGeometry(Part.Circle(Vector(11, 140.208836, 0), Vector(0, 0, 1), 6), False)
sketch9.addConstraint(Sketcher.Constraint("Equal", 0, 1))
sketch9.addConstraint(Sketcher.Constraint("Vertical", 0, 3, 1, 3))
sketch9.addConstraint(Sketcher.Constraint("Diameter", 0, 12.0))
sketch9.addConstraint(Sketcher.Constraint("DistanceX", -1, 1, 0, 3, 11.0))
sketch9.addConstraint(Sketcher.Constraint("DistanceY", 0, 3, 1, 3, 45.0))
sketch9.addConstraint(Sketcher.Constraint("DistanceY", -1, 1, 0, 3, 95.208836))
pocket5 = body.newObject("PartDesign::Pocket", "Pocket004")
pocket5.Profile = sketch9
pocket5.Length = 58
pocket5.Reversed = True

# Sketch on XZ plane
sketch10 = body.newObject("Sketcher::SketchObject", "Sketch009")
sketch10.AttachmentSupport = (doc.getObject("XZ_Plane"), [""])
sketch10.MapMode = "FlatFace"
sketch10.addGeometry(Part.LineSegment(Vector(-26.353792, 151.208836, 0), Vector(-26.353792, 129.208836, 0)), False)
sketch10.addGeometry(Part.LineSegment(Vector(-26.353792, 129.208836, 0), Vector(-22.353792, 129.208836, 0)), False)
sketch10.addGeometry(Part.LineSegment(Vector(-22.353792, 129.208836, 0), Vector(-22.353792, 151.208836, 0)), False)
sketch10.addGeometry(Part.LineSegment(Vector(-22.353792, 151.208836, 0), Vector(-26.353792, 151.208836, 0)), False)
sketch10.addGeometry(Part.LineSegment(Vector(-10.353792, 151.208836, 0), Vector(-10.353792, 129.208836, 0)), False)
sketch10.addGeometry(Part.LineSegment(Vector(-10.353792, 129.208836, 0), Vector(-6.353792, 129.208836, 0)), False)
sketch10.addGeometry(Part.LineSegment(Vector(-6.353792, 129.208836, 0), Vector(-6.353792, 151.208836, 0)), False)
sketch10.addGeometry(Part.LineSegment(Vector(-6.353792, 151.208836, 0), Vector(-10.353792, 151.208836, 0)), False)
sketch10.addGeometry(Part.LineSegment(Vector(-1.353792, 151.208836, 0), Vector(-1.353792, 129.208836, 0)), False)
sketch10.addGeometry(Part.LineSegment(Vector(-1.353792, 129.208836, 0), Vector(2.646208, 129.208836, 0)), False)
sketch10.addGeometry(Part.LineSegment(Vector(2.646208, 129.208836, 0), Vector(2.646208, 151.208836, 0)), False)
sketch10.addGeometry(Part.LineSegment(Vector(2.646208, 151.208836, 0), Vector(-1.353792, 151.208836, 0)), False)
sketch10.addGeometry(Part.LineSegment(Vector(14.646208, 151.208836, 0), Vector(14.646208, 129.208836, 0)), False)
sketch10.addGeometry(Part.LineSegment(Vector(14.646208, 129.208836, 0), Vector(18.646208, 129.208836, 0)), False)
sketch10.addGeometry(Part.LineSegment(Vector(18.646208, 129.208836, 0), Vector(18.646208, 151.208836, 0)), False)
sketch10.addGeometry(Part.LineSegment(Vector(18.646208, 151.208836, 0), Vector(14.646208, 151.208836, 0)), False)
sketch10.addGeometry(Part.LineSegment(Vector(-26.353792, 106.208836, 0), Vector(-26.353792, 84.208836, 0)), False)
sketch10.addGeometry(Part.LineSegment(Vector(-26.353792, 84.208836, 0), Vector(-22.353792, 84.208836, 0)), False)
sketch10.addGeometry(Part.LineSegment(Vector(-22.353792, 84.208836, 0), Vector(-22.353792, 106.208836, 0)), False)
sketch10.addGeometry(Part.LineSegment(Vector(-22.353792, 106.208836, 0), Vector(-26.353792, 106.208836, 0)), False)
sketch10.addGeometry(Part.LineSegment(Vector(-10.353792, 106.208836, 0), Vector(-10.353792, 84.208836, 0)), False)
sketch10.addGeometry(Part.LineSegment(Vector(-10.353792, 84.208836, 0), Vector(-6.353792, 84.208836, 0)), False)
sketch10.addGeometry(Part.LineSegment(Vector(-6.353792, 84.208836, 0), Vector(-6.353792, 106.208836, 0)), False)
sketch10.addGeometry(Part.LineSegment(Vector(-6.353792, 106.208836, 0), Vector(-10.353792, 106.208836, 0)), False)
sketch10.addGeometry(Part.LineSegment(Vector(-1.353792, 106.208836, 0), Vector(-1.353792, 84.208836, 0)), False)
sketch10.addGeometry(Part.LineSegment(Vector(-1.353792, 84.208836, 0), Vector(2.646208, 84.208836, 0)), False)
sketch10.addGeometry(Part.LineSegment(Vector(2.646208, 84.208836, 0), Vector(2.646208, 106.208836, 0)), False)
sketch10.addGeometry(Part.LineSegment(Vector(2.646208, 106.208836, 0), Vector(-1.353792, 106.208836, 0)), False)
sketch10.addGeometry(Part.LineSegment(Vector(14.646208, 106.208836, 0), Vector(14.646208, 84.208836, 0)), False)
sketch10.addGeometry(Part.LineSegment(Vector(14.646208, 84.208836, 0), Vector(18.646208, 84.208836, 0)), False)
sketch10.addGeometry(Part.LineSegment(Vector(18.646208, 84.208836, 0), Vector(18.646208, 106.208836, 0)), False)
sketch10.addGeometry(Part.LineSegment(Vector(18.646208, 106.208836, 0), Vector(14.646208, 106.208836, 0)), False)
sketch10.addConstraint(Sketcher.Constraint("Coincident", 0, 2, 1, 1))
sketch10.addConstraint(Sketcher.Constraint("Coincident", 1, 2, 2, 1))
sketch10.addConstraint(Sketcher.Constraint("Coincident", 2, 2, 3, 1))
sketch10.addConstraint(Sketcher.Constraint("Coincident", 3, 2, 0, 1))
sketch10.addConstraint(Sketcher.Constraint("Coincident", 4, 2, 5, 1))
sketch10.addConstraint(Sketcher.Constraint("Coincident", 5, 2, 6, 1))
sketch10.addConstraint(Sketcher.Constraint("Coincident", 6, 2, 7, 1))
sketch10.addConstraint(Sketcher.Constraint("Coincident", 7, 2, 4, 1))
sketch10.addConstraint(Sketcher.Constraint("Coincident", 8, 2, 9, 1))
sketch10.addConstraint(Sketcher.Constraint("Coincident", 9, 2, 10, 1))
sketch10.addConstraint(Sketcher.Constraint("Coincident", 10, 2, 11, 1))
sketch10.addConstraint(Sketcher.Constraint("Coincident", 11, 2, 8, 1))
sketch10.addConstraint(Sketcher.Constraint("Coincident", 12, 2, 13, 1))
sketch10.addConstraint(Sketcher.Constraint("Coincident", 13, 2, 14, 1))
sketch10.addConstraint(Sketcher.Constraint("Coincident", 14, 2, 15, 1))
sketch10.addConstraint(Sketcher.Constraint("Coincident", 15, 2, 12, 1))
sketch10.addConstraint(Sketcher.Constraint("Coincident", 16, 2, 17, 1))
sketch10.addConstraint(Sketcher.Constraint("Coincident", 17, 2, 18, 1))
sketch10.addConstraint(Sketcher.Constraint("Coincident", 18, 2, 19, 1))
sketch10.addConstraint(Sketcher.Constraint("Coincident", 19, 2, 16, 1))
sketch10.addConstraint(Sketcher.Constraint("Coincident", 20, 2, 21, 1))
sketch10.addConstraint(Sketcher.Constraint("Coincident", 21, 2, 22, 1))
sketch10.addConstraint(Sketcher.Constraint("Coincident", 22, 2, 23, 1))
sketch10.addConstraint(Sketcher.Constraint("Coincident", 23, 2, 20, 1))
sketch10.addConstraint(Sketcher.Constraint("Coincident", 24, 2, 25, 1))
sketch10.addConstraint(Sketcher.Constraint("Coincident", 25, 2, 26, 1))
sketch10.addConstraint(Sketcher.Constraint("Coincident", 26, 2, 27, 1))
sketch10.addConstraint(Sketcher.Constraint("Coincident", 27, 2, 24, 1))
sketch10.addConstraint(Sketcher.Constraint("Coincident", 28, 2, 29, 1))
sketch10.addConstraint(Sketcher.Constraint("Coincident", 29, 2, 30, 1))
sketch10.addConstraint(Sketcher.Constraint("Coincident", 30, 2, 31, 1))
sketch10.addConstraint(Sketcher.Constraint("Coincident", 31, 2, 28, 1))
sketch10.addConstraint(Sketcher.Constraint("Vertical", 0))
sketch10.addConstraint(Sketcher.Constraint("Horizontal", 1))
sketch10.addConstraint(Sketcher.Constraint("Vertical", 2))
sketch10.addConstraint(Sketcher.Constraint("Horizontal", 3))
sketch10.addConstraint(Sketcher.Constraint("Vertical", 4))
sketch10.addConstraint(Sketcher.Constraint("Horizontal", 5))
sketch10.addConstraint(Sketcher.Constraint("Vertical", 6))
sketch10.addConstraint(Sketcher.Constraint("Horizontal", 7))
sketch10.addConstraint(Sketcher.Constraint("Vertical", 8))
sketch10.addConstraint(Sketcher.Constraint("Horizontal", 9))
sketch10.addConstraint(Sketcher.Constraint("Vertical", 10))
sketch10.addConstraint(Sketcher.Constraint("Horizontal", 11))
sketch10.addConstraint(Sketcher.Constraint("Vertical", 12))
sketch10.addConstraint(Sketcher.Constraint("Horizontal", 13))
sketch10.addConstraint(Sketcher.Constraint("Vertical", 14))
sketch10.addConstraint(Sketcher.Constraint("Horizontal", 15))
sketch10.addConstraint(Sketcher.Constraint("Vertical", 16))
sketch10.addConstraint(Sketcher.Constraint("Horizontal", 17))
sketch10.addConstraint(Sketcher.Constraint("Vertical", 18))
sketch10.addConstraint(Sketcher.Constraint("Horizontal", 19))
sketch10.addConstraint(Sketcher.Constraint("Vertical", 20))
sketch10.addConstraint(Sketcher.Constraint("Horizontal", 21))
sketch10.addConstraint(Sketcher.Constraint("Vertical", 22))
sketch10.addConstraint(Sketcher.Constraint("Horizontal", 23))
sketch10.addConstraint(Sketcher.Constraint("Vertical", 24))
sketch10.addConstraint(Sketcher.Constraint("Horizontal", 25))
sketch10.addConstraint(Sketcher.Constraint("Vertical", 26))
sketch10.addConstraint(Sketcher.Constraint("Horizontal", 27))
sketch10.addConstraint(Sketcher.Constraint("Vertical", 28))
sketch10.addConstraint(Sketcher.Constraint("Horizontal", 29))
sketch10.addConstraint(Sketcher.Constraint("Vertical", 30))
sketch10.addConstraint(Sketcher.Constraint("Horizontal", 31))
sketch10.addConstraint(Sketcher.Constraint("Horizontal", 1, 2, 4, 2))
sketch10.addConstraint(Sketcher.Constraint("Horizontal", 3, 2, 6, 2))
sketch10.addConstraint(Sketcher.Constraint("Horizontal", 5, 2, 8, 2))
sketch10.addConstraint(Sketcher.Constraint("Horizontal", 7, 2, 10, 2))
sketch10.addConstraint(Sketcher.Constraint("Horizontal", 9, 2, 12, 2))
sketch10.addConstraint(Sketcher.Constraint("Horizontal", 11, 2, 14, 2))
sketch10.addConstraint(Sketcher.Constraint("Horizontal", 17, 2, 20, 2))
sketch10.addConstraint(Sketcher.Constraint("Horizontal", 19, 2, 22, 2))
sketch10.addConstraint(Sketcher.Constraint("Horizontal", 21, 2, 24, 2))
sketch10.addConstraint(Sketcher.Constraint("Horizontal", 23, 2, 26, 2))
sketch10.addConstraint(Sketcher.Constraint("Horizontal", 25, 2, 28, 2))
sketch10.addConstraint(Sketcher.Constraint("Horizontal", 27, 2, 30, 2))
sketch10.addConstraint(Sketcher.Constraint("Vertical", 3, 2, 16, 2))
sketch10.addConstraint(Sketcher.Constraint("Vertical", 2, 2, 17, 2))
sketch10.addConstraint(Sketcher.Constraint("Vertical", 7, 2, 20, 2))
sketch10.addConstraint(Sketcher.Constraint("Vertical", 6, 2, 21, 2))
sketch10.addConstraint(Sketcher.Constraint("Vertical", 11, 2, 24, 2))
sketch10.addConstraint(Sketcher.Constraint("Vertical", 10, 2, 25, 2))
sketch10.addConstraint(Sketcher.Constraint("Vertical", 15, 2, 28, 2))
sketch10.addConstraint(Sketcher.Constraint("Vertical", 14, 2, 29, 2))
sketch10.addConstraint(Sketcher.Constraint("Equal", 3, 5))
sketch10.addConstraint(Sketcher.Constraint("Equal", 7, 9))
sketch10.addConstraint(Sketcher.Constraint("Equal", 11, 13))
sketch10.addConstraint(Sketcher.Constraint("Equal", 14, 16))
sketch10.addConstraint(Sketcher.Constraint("DistanceX", 1, 1, 1, 2, 4.0))
sketch10.addConstraint(Sketcher.Constraint("DistanceY", 0, 2, 0, 1, 22.0))
sketch10.addConstraint(Sketcher.Constraint("DistanceX", 1, 2, 4, 2, 12.0))
sketch10.addConstraint(Sketcher.Constraint("DistanceX", 5, 2, 8, 2, 5.0))
sketch10.addConstraint(Sketcher.Constraint("DistanceX", 9, 2, 12, 2, 12.0))
sketch10.addConstraint(Sketcher.Constraint("DistanceY", 16, 2, 0, 2, 45.0))
sketch10.addConstraint(Sketcher.Constraint("DistanceX", 0, 2, -1, 1, 26.353792))
sketch10.addConstraint(Sketcher.Constraint("DistanceY", -1, 1, 0, 2, 129.208836))
pocket6 = body.newObject("PartDesign::Pocket", "Pocket005")
pocket6.Profile = sketch10
pocket6.Length = 2
doc.recompute()

chamfer = body.newObject("PartDesign::Chamfer", "Chamfer")
chamfer.Base = (pocket6, edges_at(pocket6, [
    (23.646, 10.5, 120.809),
    (0.646, 10.5, 120.809),
    (-7.354, 10.5, 120.809),
    (-30.354, 10.5, 120.809),
]))
chamfer.Size = 6
doc.recompute()

fillet = body.newObject("PartDesign::Fillet", "Fillet")
fillet.Base = (chamfer, edges_at(chamfer, [
    (23.646, 6.5, 83.209),
    (-30.354, 6.5, 83.209),
    (-30.354, 6.5, 152.209),
    (23.646, 6.5, 152.209),
    (23.646, 10, 125.509),
    (-30.354, 10, 110.209),
    (-30.354, 10, 125.509),
]))
fillet.Radius = 3

doc.recompute()
